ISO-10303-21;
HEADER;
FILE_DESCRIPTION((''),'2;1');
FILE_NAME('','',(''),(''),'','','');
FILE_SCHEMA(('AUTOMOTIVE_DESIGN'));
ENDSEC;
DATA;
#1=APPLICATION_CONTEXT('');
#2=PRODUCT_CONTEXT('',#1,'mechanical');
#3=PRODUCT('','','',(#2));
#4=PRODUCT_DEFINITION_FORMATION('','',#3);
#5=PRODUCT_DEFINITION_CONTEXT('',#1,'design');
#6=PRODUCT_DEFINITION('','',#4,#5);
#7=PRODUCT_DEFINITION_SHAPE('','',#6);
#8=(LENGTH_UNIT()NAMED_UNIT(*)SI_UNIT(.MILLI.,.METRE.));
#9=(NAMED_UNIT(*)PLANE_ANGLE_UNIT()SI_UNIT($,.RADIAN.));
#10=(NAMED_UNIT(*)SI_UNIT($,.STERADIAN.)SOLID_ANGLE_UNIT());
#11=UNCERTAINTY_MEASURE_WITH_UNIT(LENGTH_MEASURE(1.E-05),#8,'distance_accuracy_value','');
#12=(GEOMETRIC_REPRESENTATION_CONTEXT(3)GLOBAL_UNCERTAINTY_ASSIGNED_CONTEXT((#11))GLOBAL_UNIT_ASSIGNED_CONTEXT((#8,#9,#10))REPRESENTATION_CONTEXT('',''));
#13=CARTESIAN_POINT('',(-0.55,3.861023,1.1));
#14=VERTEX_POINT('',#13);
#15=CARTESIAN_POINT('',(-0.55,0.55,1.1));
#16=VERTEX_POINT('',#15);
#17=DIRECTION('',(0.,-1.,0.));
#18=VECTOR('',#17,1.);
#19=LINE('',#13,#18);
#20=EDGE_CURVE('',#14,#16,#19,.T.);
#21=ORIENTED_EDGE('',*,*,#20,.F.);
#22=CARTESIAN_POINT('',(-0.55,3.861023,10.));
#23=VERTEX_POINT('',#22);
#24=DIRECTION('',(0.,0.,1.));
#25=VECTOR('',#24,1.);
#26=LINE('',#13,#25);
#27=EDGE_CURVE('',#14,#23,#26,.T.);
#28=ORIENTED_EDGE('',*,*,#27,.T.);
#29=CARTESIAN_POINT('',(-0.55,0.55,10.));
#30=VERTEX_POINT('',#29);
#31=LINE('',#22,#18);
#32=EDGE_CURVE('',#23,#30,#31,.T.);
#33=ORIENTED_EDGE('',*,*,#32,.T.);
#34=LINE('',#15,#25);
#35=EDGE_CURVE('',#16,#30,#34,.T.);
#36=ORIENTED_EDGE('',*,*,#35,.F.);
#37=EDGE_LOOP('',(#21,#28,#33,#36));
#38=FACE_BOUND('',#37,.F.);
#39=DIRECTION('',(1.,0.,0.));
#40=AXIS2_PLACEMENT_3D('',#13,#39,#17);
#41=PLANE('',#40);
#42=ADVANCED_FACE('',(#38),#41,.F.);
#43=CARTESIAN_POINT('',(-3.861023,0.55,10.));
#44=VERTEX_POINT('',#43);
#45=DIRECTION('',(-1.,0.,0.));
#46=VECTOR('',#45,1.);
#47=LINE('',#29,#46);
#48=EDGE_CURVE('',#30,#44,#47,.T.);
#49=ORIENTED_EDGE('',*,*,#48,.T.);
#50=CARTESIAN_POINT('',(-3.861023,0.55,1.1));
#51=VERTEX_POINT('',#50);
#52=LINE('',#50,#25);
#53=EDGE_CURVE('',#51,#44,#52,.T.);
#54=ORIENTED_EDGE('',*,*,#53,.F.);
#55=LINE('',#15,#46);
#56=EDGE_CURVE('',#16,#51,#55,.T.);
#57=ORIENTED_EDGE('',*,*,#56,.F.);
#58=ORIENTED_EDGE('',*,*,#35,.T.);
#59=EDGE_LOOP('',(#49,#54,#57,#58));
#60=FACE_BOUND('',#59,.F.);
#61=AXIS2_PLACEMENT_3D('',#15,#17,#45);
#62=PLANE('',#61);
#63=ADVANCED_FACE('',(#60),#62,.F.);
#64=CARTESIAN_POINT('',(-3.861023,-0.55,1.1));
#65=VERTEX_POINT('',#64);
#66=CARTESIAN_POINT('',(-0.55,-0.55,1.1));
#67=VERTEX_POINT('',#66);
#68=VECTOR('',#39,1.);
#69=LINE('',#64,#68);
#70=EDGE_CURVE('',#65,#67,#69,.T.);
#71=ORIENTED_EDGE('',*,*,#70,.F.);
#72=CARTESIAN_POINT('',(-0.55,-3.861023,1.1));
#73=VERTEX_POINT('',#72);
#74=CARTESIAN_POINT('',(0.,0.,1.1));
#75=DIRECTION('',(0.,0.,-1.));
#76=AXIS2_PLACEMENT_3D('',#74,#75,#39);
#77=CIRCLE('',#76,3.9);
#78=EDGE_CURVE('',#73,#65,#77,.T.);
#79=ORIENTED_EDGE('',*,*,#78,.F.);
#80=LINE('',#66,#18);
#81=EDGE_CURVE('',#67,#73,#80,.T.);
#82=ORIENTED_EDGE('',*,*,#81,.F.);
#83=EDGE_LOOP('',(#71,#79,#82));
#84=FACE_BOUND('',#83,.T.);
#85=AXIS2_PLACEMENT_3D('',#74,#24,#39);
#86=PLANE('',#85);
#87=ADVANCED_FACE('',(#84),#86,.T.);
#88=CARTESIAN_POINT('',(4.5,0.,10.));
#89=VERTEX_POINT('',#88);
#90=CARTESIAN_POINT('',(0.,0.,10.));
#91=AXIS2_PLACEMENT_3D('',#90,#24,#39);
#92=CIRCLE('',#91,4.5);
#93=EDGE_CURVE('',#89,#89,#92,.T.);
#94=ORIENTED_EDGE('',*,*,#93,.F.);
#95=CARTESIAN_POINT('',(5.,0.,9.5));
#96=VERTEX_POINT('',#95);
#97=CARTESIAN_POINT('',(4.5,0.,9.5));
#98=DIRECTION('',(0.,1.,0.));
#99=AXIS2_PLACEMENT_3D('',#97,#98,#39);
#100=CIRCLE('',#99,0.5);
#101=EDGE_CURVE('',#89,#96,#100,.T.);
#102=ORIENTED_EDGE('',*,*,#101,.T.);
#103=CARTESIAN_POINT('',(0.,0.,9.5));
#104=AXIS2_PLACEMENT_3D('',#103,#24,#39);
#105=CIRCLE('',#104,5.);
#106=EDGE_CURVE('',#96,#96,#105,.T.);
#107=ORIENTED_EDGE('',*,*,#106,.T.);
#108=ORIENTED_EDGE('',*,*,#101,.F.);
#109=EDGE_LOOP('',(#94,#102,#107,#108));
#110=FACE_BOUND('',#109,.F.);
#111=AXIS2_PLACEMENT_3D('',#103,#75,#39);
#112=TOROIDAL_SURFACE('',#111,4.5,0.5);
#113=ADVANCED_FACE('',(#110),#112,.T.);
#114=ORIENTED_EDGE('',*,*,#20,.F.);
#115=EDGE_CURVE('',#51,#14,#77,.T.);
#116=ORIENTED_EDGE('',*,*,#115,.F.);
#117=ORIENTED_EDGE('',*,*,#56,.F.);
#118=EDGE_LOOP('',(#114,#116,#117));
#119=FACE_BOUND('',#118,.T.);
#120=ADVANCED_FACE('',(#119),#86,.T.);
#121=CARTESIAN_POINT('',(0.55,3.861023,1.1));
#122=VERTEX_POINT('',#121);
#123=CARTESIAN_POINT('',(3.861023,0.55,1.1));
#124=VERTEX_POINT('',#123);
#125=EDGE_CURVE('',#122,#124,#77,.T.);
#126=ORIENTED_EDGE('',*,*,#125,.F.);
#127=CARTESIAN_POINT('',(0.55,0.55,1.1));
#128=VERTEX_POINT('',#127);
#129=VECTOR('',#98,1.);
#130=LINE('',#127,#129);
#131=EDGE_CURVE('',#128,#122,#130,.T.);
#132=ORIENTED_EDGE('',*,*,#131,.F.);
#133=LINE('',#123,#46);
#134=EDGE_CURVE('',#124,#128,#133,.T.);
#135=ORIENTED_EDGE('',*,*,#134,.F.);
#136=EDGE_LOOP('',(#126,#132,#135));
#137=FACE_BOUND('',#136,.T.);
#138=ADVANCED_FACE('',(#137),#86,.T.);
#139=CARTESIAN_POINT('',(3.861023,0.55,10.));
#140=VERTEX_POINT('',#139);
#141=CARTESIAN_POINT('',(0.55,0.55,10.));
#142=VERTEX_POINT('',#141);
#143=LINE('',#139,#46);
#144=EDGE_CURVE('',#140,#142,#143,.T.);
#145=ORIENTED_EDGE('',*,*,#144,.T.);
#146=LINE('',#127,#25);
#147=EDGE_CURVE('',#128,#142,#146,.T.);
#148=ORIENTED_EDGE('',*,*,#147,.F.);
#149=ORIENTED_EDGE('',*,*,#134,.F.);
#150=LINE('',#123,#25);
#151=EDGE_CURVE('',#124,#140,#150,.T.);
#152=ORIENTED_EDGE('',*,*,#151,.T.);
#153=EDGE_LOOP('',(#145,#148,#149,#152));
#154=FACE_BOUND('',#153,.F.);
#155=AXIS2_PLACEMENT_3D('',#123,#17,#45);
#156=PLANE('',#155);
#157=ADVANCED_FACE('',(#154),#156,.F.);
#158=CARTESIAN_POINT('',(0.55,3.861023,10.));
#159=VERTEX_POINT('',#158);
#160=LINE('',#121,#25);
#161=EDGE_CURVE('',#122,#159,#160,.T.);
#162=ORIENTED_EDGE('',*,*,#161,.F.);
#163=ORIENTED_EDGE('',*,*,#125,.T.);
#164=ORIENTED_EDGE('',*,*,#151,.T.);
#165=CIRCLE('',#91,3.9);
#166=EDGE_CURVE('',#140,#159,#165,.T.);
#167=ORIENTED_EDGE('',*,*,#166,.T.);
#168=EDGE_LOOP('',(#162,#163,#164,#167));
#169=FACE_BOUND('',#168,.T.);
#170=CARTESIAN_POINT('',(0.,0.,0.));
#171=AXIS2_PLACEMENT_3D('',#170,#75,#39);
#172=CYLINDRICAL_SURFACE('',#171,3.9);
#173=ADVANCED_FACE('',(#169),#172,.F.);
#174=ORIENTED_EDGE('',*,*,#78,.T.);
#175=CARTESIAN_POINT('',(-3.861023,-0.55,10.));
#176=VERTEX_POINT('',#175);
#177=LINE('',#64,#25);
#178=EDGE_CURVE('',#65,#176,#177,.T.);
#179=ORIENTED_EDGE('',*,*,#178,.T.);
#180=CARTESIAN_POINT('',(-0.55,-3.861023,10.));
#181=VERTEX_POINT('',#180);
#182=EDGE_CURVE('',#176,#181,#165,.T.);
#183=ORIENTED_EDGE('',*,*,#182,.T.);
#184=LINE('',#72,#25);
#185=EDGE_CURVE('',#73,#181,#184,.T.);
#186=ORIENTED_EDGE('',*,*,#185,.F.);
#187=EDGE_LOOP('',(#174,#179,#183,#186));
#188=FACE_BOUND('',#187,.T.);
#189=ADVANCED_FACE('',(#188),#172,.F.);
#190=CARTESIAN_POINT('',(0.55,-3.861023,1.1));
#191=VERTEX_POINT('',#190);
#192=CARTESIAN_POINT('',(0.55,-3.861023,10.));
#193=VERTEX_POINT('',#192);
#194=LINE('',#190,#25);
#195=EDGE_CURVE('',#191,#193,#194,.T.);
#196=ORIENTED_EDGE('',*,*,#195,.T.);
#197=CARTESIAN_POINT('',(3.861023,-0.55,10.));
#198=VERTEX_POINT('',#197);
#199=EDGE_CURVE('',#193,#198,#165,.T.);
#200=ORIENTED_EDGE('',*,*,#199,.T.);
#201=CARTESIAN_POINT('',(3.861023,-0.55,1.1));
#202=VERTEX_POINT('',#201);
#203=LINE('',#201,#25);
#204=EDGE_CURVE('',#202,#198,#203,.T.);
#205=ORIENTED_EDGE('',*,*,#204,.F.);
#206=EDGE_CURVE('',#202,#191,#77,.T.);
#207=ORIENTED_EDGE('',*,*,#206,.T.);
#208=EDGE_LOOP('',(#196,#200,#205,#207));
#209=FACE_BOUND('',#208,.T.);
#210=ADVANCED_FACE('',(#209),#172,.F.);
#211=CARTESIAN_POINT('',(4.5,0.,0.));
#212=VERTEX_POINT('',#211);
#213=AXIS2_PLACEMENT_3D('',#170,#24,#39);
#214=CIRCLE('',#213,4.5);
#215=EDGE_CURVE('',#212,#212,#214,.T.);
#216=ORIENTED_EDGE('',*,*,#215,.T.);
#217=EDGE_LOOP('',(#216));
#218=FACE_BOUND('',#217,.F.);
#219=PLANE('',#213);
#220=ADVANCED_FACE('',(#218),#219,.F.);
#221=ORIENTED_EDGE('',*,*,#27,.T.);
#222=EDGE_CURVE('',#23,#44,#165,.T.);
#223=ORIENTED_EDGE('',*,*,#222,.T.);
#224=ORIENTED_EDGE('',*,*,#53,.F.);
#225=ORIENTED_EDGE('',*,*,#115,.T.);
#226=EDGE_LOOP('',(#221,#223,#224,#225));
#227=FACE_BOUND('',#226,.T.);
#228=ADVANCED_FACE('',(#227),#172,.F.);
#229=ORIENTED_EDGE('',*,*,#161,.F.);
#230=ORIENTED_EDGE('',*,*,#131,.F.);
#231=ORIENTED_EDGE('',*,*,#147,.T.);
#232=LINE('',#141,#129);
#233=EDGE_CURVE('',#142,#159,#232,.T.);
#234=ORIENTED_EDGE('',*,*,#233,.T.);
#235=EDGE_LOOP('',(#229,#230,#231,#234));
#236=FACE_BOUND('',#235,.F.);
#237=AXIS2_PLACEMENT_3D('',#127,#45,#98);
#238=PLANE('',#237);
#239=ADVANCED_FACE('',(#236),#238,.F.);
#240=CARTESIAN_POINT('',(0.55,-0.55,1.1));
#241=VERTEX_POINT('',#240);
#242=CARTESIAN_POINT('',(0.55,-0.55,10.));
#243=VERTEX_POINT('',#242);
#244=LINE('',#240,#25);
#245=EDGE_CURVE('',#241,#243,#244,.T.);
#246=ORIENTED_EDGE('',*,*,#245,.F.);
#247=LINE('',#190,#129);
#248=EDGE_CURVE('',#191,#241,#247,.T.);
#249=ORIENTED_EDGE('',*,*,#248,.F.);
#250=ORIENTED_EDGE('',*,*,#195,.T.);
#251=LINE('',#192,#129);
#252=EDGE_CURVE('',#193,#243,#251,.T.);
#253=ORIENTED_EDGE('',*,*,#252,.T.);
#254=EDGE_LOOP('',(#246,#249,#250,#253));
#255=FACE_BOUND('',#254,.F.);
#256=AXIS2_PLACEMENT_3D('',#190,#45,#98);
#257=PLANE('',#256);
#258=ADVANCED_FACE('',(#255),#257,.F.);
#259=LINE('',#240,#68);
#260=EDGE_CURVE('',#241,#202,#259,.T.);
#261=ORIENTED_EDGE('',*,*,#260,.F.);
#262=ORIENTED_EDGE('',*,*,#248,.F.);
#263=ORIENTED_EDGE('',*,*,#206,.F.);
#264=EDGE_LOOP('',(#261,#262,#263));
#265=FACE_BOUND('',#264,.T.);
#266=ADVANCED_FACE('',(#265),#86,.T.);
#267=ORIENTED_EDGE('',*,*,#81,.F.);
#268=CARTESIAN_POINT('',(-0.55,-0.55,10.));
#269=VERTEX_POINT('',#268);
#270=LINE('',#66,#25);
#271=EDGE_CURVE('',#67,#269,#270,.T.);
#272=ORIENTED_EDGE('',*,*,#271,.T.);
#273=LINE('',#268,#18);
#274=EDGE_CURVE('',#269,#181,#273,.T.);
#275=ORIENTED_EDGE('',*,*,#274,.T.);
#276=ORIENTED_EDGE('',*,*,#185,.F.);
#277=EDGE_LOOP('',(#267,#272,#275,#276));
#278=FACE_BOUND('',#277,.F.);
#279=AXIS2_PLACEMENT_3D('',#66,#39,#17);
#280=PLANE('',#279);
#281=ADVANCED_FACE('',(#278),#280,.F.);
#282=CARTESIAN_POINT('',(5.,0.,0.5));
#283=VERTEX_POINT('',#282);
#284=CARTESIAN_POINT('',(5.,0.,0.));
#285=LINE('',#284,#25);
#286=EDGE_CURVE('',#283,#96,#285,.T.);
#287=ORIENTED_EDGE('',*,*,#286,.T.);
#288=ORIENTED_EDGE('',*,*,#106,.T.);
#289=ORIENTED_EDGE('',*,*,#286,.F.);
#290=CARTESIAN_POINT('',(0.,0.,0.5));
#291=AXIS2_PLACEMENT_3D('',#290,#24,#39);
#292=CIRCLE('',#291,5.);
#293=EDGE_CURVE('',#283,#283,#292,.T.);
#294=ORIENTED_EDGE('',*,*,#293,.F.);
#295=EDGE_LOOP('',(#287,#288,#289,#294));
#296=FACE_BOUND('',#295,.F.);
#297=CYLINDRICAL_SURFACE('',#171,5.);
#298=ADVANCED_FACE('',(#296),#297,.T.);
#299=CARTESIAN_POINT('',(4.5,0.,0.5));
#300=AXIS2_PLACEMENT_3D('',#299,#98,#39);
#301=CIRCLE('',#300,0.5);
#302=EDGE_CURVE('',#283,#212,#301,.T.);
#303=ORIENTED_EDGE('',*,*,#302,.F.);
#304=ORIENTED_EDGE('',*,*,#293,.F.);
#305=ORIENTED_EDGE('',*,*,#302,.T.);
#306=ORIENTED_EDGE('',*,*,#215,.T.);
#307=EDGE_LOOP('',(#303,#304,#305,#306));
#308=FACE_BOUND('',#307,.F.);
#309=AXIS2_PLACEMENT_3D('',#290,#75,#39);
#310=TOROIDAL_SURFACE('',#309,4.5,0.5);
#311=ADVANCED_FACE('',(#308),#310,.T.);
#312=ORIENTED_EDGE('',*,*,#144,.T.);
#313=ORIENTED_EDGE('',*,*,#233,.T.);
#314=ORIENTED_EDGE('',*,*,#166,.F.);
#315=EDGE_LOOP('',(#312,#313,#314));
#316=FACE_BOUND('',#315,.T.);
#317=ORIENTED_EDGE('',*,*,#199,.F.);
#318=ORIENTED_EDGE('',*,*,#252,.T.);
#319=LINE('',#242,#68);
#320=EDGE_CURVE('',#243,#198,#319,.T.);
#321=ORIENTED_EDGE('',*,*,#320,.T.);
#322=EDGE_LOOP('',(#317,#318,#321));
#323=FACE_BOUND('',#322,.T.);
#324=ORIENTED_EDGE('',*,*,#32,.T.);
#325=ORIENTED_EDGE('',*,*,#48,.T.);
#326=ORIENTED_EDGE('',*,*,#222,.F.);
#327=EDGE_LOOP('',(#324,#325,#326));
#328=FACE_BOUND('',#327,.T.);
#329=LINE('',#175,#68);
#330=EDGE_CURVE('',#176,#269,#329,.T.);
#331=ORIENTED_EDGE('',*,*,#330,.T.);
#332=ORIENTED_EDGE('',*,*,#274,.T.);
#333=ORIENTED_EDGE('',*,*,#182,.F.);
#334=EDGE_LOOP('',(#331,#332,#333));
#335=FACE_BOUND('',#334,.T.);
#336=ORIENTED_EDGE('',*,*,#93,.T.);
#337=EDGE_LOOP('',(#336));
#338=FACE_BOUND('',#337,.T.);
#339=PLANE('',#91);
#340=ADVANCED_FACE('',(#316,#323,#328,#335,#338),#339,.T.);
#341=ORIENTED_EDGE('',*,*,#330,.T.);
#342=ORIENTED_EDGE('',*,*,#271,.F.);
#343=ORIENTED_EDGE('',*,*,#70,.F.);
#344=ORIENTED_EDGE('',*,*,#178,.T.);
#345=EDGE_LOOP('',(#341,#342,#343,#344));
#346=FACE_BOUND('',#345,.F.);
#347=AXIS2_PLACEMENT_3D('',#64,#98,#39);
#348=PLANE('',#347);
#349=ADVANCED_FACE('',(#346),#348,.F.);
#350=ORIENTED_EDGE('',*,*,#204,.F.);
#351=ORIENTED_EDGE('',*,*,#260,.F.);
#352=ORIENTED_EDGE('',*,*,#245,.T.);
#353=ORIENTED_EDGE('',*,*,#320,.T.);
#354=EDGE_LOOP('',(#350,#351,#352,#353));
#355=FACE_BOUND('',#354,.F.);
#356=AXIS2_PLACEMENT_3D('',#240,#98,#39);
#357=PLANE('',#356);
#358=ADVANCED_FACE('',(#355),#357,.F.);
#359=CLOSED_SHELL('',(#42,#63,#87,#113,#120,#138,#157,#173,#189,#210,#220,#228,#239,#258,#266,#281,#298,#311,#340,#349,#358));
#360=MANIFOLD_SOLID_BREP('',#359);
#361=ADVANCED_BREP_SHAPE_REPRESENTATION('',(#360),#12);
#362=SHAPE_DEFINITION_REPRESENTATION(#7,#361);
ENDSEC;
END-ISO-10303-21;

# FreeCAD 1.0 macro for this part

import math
import FreeCAD as App
import Part
import Sketcher

V = App.Vector
Q = App.Units.Quantity


def edges_at(feature, points):
    """Names of the edges that pass closest to the given points."""
    edges = feature.Shape.Edges
    near = lambda p: min(range(len(edges)), key=lambda i: edges[i].distToShape(Part.Vertex(*p))[0])
    return sorted({f"Edge{near(p) + 1}" for p in points})


def faces_at(feature, points):
    """Names of the faces that lie closest to the given points."""
    faces = feature.Shape.Faces
    near = lambda p: min(range(len(faces)), key=lambda i: faces[i].distToShape(Part.Vertex(*p))[0])
    return sorted({f"Face{near(p) + 1}" for p in points})

doc = App.newDocument("Part")
body = doc.addObject("PartDesign::Body", "Body")

sketch1 = body.newObject("Sketcher::SketchObject", "Sketch")
sketch1.AttachmentSupport = (doc.getObject("XY_Plane"), [""])
sketch1.MapMode = "FlatFace"
sketch1.addGeometry(Part.Circle(V(0, 0, 0), V(0, 0, 1), 5), False)
sketch1.addConstraint(Sketcher.Constraint("Coincident", 0, 3, -1, 1))
sketch1.addConstraint(Sketcher.Constraint("Diameter", 0, Q("10 mm")))
pad1 = body.newObject("PartDesign::Pad", "Pad")
pad1.Profile = sketch1
pad1.Length = 10
doc.recompute()

thickness = body.newObject("PartDesign::Thickness", "Thickness")
thickness.Base = (pad1, faces_at(pad1, [(0, 0, 10)]))
thickness.Value = 1.1
thickness.Reversed = True
thickness.Join = "Arc"

sketch2 = body.newObject("Sketcher::SketchObject", "Sketch001")
sketch2.AttachmentSupport = (doc.getObject("XY_Plane"), [""])
sketch2.MapMode = "FlatFace"
sketch2.AttachmentOffset = App.Placement(V(0, 0, 1.1), App.Rotation())
sketch2.addGeometry(Part.LineSegment(V(-0.55, 0.55, 0), V(-3.861023, 0.55, 0)), False)
sketch2.addGeometry(Part.ArcOfCircle(Part.Circle(V(-0.000018, 0, 0), V(0, 0, 1), 3.899982), math.radians(171.892763), math.radians(188.107237)), False)
sketch2.addGeometry(Part.LineSegment(V(-3.861023, -0.55, 0), V(-0.55, -0.55, 0)), False)
sketch2.addGeometry(Part.LineSegment(V(-0.55, -0.55, 0), V(-0.55, -3.861023, 0)), False)
sketch2.addGeometry(Part.ArcOfCircle(Part.Circle(V(0, -0.000018, 0), V(0, 0, 1), 3.899982), math.radians(-98.107237), math.radians(-81.892763)), False)
sketch2.addGeometry(Part.LineSegment(V(0.55, -3.861023, 0), V(0.55, -0.55, 0)), False)
sketch2.addGeometry(Part.LineSegment(V(0.55, -0.55, 0), V(3.861023, -0.55, 0)), False)
sketch2.addGeometry(Part.ArcOfCircle(Part.Circle(V(0.000018, 0, 0), V(0, 0, 1), 3.899982), math.radians(-8.107237), math.radians(8.107237)), False)
sketch2.addGeometry(Part.LineSegment(V(3.861023, 0.55, 0), V(0.55, 0.55, 0)), False)
sketch2.addGeometry(Part.LineSegment(V(0.55, 0.55, 0), V(0.55, 3.861023, 0)), False)
sketch2.addGeometry(Part.ArcOfCircle(Part.Circle(V(0, 0.000018, 0), V(0, 0, 1), 3.899982), math.radians(81.892763), math.radians(98.107237)), False)
sketch2.addGeometry(Part.LineSegment(V(-0.55, 3.861023, 0), V(-0.55, 0.55, 0)), False)
sketch2.addConstraint(Sketcher.Constraint("Coincident", 0, 2, 1, 1))
sketch2.addConstraint(Sketcher.Constraint("Coincident", 1, 2, 2, 1))
sketch2.addConstraint(Sketcher.Constraint("Coincident", 2, 2, 3, 1))
sketch2.addConstraint(Sketcher.Constraint("Coincident", 3, 2, 4, 1))
sketch2.addConstraint(Sketcher.Constraint("Coincident", 4, 2, 5, 1))
sketch2.addConstraint(Sketcher.Constraint("Coincident", 5, 2, 6, 1))
sketch2.addConstraint(Sketcher.Constraint("Coincident", 6, 2, 7, 1))
sketch2.addConstraint(Sketcher.Constraint("Coincident", 7, 2, 8, 1))
sketch2.addConstraint(Sketcher.Constraint("Coincident", 8, 2, 9, 1))
sketch2.addConstraint(Sketcher.Constraint("Coincident", 9, 2, 10, 1))
sketch2.addConstraint(Sketcher.Constraint("Coincident", 10, 2, 11, 1))
sketch2.addConstraint(Sketcher.Constraint("Coincident", 11, 2, 0, 1))
sketch2.addConstraint(Sketcher.Constraint("Horizontal", 0))
sketch2.addConstraint(Sketcher.Constraint("Horizontal", 2))
sketch2.addConstraint(Sketcher.Constraint("Vertical", 3))
sketch2.addConstraint(Sketcher.Constraint("Vertical", 5))
sketch2.addConstraint(Sketcher.Constraint("Horizontal", 6))
sketch2.addConstraint(Sketcher.Constraint("Horizontal", 8))
sketch2.addConstraint(Sketcher.Constraint("Vertical", 9))
sketch2.addConstraint(Sketcher.Constraint("Vertical", 11))
sketch2.addConstraint(Sketcher.Constraint("Equal", 1, 4))
sketch2.addConstraint(Sketcher.Constraint("Equal", 4, 7))
sketch2.addConstraint(Sketcher.Constraint("Equal", 7, 10))
sketch2.addConstraint(Sketcher.Constraint("Symmetric", 1, 3, 7, 3, -1, 1))
sketch2.addConstraint(Sketcher.Constraint("Symmetric", 4, 3, 10, 3, -1, 1))
sketch2.addConstraint(Sketcher.Constraint("Symmetric", 2, 2, 8, 2, -1, 1))
sketch2.addConstraint(Sketcher.Constraint("Symmetric", 5, 2, 11, 2, -1, 1))
sketch2.addConstraint(Sketcher.Constraint("Symmetric", 3, 2, 4, 2, -2))
sketch2.addConstraint(Sketcher.Constraint("Symmetric", 1, 2, 6, 2, -2))
sketch2.addConstraint(Sketcher.Constraint("Equal", 8, 3))
sketch2.addConstraint(Sketcher.Constraint("DistanceY", 1, 2, 0, 2, Q("1.1 mm")))
sketch2.addConstraint(Sketcher.Constraint("DistanceX", 3, 2, 4, 2, Q("1.1 mm")))
sketch2.addConstraint(Sketcher.Constraint("Radius", 1, Q("3.899982 mm")))
sketch2.addConstraint(Sketcher.Constraint("DistanceX", 0, 2, 0, 1, Q("3.311023 mm")))
pad2 = body.newObject("PartDesign::Pad", "Pad001")
pad2.Profile = sketch2
pad2.Length = 8.9
doc.recompute()

fillet = body.newObject("PartDesign::Fillet", "Fillet")
fillet.Base = (pad2, edges_at(pad2, [(-5, 0, 10), (-5, 0, 0)]))
fillet.Radius = 0.5

doc.recompute()
